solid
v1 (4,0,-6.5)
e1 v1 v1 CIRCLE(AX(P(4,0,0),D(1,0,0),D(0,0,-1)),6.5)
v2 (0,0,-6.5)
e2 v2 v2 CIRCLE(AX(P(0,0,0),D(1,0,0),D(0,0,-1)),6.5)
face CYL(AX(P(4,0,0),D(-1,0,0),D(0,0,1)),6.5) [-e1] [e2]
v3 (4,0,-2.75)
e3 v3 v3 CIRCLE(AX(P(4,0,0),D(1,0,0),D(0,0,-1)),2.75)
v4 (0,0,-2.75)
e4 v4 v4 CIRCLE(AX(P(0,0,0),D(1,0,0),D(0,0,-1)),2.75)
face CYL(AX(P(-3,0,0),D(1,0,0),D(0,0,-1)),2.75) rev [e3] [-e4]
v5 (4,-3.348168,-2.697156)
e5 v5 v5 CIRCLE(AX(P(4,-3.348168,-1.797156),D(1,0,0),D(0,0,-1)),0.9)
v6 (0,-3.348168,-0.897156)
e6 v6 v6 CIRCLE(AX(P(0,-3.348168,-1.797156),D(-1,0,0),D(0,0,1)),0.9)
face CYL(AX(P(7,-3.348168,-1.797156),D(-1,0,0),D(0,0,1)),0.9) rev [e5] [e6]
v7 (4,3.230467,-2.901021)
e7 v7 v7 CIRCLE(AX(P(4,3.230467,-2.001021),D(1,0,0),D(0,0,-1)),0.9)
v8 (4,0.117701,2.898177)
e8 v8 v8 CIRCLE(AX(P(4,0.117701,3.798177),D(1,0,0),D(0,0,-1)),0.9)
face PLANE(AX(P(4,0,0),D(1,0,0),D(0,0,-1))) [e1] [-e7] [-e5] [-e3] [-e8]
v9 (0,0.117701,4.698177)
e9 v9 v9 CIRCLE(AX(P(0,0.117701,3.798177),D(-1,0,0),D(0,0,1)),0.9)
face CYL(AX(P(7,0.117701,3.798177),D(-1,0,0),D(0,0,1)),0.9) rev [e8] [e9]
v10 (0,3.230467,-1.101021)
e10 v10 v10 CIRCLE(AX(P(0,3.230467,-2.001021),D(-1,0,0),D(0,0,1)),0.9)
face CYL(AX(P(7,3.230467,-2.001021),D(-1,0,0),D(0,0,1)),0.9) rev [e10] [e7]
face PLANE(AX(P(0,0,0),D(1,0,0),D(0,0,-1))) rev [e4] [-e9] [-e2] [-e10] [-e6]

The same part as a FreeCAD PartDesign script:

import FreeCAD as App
import Part
import Sketcher

V = App.Vector

doc = App.newDocument("Part")
body = doc.addObject("PartDesign::Body", "Body")

# Sketch on YZ plane
sketch1 = doc.addObject("Sketcher::SketchObject", "Sketch")
body.addObject(sketch1)
sketch1.AttachmentSupport = (doc.YZ_Plane, [""])
sketch1.MapMode = "FlatFace"
sketch1.addGeometry(Part.Circle(V(0, 0, 0), V(0, 0, 1), 6), False)
sketch1.addConstraint([
    Sketcher.Constraint("Coincident", 0, 3, -1, 1),
    Sketcher.Constraint("Diameter", 0, 13.0),
])
pad1 = doc.addObject("PartDesign::Pad", "Pad")
body.addObject(pad1)
pad1.Profile = sketch1
pad1.Length = 4

# Sketch on YZ plane
sketch2 = doc.addObject("Sketcher::SketchObject", "Sketch001")
body.addObject(sketch2)
sketch2.AttachmentSupport = (doc.YZ_Plane, [""])
sketch2.MapMode = "FlatFace"
sketch2.AttachmentOffset = App.Placement(V(0, 0, 4), App.Rotation())
sketch2.addGeometry(Part.Circle(V(0, 0, 0), V(0, 0, 1), 2.8), False)
sketch2.addConstraint([
    Sketcher.Constraint("Coincident", 0, 3, -1, 1),
    Sketcher.Constraint("Diameter", 0, 5.5),
])
pocket1 = doc.addObject("PartDesign::Pocket", "Pocket")
body.addObject(pocket1)
pocket1.Profile = sketch2
pocket1.Length = 7

# Sketch on YZ plane
sketch3 = doc.addObject("Sketcher::SketchObject", "Sketch002")
body.addObject(sketch3)
sketch3.AttachmentSupport = (doc.YZ_Plane, [""])
sketch3.MapMode = "FlatFace"
sketch3.addGeometry([
    Part.Circle(V(3.2, -2, 0), V(0, 0, 1), 0.9),
    Part.Circle(V(0.1, 3.8, 0), V(0, 0, 1), 0.9),
    Part.Circle(V(-3.3, -1.8, 0), V(0, 0, 1), 0.9),
], False)
sketch3.addConstraint([
    Sketcher.Constraint("Equal", 0, 1),
    Sketcher.Constraint("Equal", 1, 2),
    Sketcher.Constraint("Diameter", 0, 1.8),
    Sketcher.Constraint("DistanceX", -1, 1, 1, 3, 0.117701),
    Sketcher.Constraint("DistanceY", 0, 3, -1, 1, 2.001021),
    Sketcher.Constraint("DistanceX", 2, 3, -1, 1, 3.348168),
    Sketcher.Constraint("DistanceX", -1, 1, 0, 3, 3.230467),
    Sketcher.Constraint("DistanceY", -1, 1, 1, 3, 3.798177),
    Sketcher.Constraint("DistanceY", 2, 3, -1, 1, 1.797156),
])
pocket2 = doc.addObject("PartDesign::Pocket", "Pocket001")
body.addObject(pocket2)
pocket2.Profile = sketch3
pocket2.Length = 7
pocket2.Reversed = True

doc.recompute()
